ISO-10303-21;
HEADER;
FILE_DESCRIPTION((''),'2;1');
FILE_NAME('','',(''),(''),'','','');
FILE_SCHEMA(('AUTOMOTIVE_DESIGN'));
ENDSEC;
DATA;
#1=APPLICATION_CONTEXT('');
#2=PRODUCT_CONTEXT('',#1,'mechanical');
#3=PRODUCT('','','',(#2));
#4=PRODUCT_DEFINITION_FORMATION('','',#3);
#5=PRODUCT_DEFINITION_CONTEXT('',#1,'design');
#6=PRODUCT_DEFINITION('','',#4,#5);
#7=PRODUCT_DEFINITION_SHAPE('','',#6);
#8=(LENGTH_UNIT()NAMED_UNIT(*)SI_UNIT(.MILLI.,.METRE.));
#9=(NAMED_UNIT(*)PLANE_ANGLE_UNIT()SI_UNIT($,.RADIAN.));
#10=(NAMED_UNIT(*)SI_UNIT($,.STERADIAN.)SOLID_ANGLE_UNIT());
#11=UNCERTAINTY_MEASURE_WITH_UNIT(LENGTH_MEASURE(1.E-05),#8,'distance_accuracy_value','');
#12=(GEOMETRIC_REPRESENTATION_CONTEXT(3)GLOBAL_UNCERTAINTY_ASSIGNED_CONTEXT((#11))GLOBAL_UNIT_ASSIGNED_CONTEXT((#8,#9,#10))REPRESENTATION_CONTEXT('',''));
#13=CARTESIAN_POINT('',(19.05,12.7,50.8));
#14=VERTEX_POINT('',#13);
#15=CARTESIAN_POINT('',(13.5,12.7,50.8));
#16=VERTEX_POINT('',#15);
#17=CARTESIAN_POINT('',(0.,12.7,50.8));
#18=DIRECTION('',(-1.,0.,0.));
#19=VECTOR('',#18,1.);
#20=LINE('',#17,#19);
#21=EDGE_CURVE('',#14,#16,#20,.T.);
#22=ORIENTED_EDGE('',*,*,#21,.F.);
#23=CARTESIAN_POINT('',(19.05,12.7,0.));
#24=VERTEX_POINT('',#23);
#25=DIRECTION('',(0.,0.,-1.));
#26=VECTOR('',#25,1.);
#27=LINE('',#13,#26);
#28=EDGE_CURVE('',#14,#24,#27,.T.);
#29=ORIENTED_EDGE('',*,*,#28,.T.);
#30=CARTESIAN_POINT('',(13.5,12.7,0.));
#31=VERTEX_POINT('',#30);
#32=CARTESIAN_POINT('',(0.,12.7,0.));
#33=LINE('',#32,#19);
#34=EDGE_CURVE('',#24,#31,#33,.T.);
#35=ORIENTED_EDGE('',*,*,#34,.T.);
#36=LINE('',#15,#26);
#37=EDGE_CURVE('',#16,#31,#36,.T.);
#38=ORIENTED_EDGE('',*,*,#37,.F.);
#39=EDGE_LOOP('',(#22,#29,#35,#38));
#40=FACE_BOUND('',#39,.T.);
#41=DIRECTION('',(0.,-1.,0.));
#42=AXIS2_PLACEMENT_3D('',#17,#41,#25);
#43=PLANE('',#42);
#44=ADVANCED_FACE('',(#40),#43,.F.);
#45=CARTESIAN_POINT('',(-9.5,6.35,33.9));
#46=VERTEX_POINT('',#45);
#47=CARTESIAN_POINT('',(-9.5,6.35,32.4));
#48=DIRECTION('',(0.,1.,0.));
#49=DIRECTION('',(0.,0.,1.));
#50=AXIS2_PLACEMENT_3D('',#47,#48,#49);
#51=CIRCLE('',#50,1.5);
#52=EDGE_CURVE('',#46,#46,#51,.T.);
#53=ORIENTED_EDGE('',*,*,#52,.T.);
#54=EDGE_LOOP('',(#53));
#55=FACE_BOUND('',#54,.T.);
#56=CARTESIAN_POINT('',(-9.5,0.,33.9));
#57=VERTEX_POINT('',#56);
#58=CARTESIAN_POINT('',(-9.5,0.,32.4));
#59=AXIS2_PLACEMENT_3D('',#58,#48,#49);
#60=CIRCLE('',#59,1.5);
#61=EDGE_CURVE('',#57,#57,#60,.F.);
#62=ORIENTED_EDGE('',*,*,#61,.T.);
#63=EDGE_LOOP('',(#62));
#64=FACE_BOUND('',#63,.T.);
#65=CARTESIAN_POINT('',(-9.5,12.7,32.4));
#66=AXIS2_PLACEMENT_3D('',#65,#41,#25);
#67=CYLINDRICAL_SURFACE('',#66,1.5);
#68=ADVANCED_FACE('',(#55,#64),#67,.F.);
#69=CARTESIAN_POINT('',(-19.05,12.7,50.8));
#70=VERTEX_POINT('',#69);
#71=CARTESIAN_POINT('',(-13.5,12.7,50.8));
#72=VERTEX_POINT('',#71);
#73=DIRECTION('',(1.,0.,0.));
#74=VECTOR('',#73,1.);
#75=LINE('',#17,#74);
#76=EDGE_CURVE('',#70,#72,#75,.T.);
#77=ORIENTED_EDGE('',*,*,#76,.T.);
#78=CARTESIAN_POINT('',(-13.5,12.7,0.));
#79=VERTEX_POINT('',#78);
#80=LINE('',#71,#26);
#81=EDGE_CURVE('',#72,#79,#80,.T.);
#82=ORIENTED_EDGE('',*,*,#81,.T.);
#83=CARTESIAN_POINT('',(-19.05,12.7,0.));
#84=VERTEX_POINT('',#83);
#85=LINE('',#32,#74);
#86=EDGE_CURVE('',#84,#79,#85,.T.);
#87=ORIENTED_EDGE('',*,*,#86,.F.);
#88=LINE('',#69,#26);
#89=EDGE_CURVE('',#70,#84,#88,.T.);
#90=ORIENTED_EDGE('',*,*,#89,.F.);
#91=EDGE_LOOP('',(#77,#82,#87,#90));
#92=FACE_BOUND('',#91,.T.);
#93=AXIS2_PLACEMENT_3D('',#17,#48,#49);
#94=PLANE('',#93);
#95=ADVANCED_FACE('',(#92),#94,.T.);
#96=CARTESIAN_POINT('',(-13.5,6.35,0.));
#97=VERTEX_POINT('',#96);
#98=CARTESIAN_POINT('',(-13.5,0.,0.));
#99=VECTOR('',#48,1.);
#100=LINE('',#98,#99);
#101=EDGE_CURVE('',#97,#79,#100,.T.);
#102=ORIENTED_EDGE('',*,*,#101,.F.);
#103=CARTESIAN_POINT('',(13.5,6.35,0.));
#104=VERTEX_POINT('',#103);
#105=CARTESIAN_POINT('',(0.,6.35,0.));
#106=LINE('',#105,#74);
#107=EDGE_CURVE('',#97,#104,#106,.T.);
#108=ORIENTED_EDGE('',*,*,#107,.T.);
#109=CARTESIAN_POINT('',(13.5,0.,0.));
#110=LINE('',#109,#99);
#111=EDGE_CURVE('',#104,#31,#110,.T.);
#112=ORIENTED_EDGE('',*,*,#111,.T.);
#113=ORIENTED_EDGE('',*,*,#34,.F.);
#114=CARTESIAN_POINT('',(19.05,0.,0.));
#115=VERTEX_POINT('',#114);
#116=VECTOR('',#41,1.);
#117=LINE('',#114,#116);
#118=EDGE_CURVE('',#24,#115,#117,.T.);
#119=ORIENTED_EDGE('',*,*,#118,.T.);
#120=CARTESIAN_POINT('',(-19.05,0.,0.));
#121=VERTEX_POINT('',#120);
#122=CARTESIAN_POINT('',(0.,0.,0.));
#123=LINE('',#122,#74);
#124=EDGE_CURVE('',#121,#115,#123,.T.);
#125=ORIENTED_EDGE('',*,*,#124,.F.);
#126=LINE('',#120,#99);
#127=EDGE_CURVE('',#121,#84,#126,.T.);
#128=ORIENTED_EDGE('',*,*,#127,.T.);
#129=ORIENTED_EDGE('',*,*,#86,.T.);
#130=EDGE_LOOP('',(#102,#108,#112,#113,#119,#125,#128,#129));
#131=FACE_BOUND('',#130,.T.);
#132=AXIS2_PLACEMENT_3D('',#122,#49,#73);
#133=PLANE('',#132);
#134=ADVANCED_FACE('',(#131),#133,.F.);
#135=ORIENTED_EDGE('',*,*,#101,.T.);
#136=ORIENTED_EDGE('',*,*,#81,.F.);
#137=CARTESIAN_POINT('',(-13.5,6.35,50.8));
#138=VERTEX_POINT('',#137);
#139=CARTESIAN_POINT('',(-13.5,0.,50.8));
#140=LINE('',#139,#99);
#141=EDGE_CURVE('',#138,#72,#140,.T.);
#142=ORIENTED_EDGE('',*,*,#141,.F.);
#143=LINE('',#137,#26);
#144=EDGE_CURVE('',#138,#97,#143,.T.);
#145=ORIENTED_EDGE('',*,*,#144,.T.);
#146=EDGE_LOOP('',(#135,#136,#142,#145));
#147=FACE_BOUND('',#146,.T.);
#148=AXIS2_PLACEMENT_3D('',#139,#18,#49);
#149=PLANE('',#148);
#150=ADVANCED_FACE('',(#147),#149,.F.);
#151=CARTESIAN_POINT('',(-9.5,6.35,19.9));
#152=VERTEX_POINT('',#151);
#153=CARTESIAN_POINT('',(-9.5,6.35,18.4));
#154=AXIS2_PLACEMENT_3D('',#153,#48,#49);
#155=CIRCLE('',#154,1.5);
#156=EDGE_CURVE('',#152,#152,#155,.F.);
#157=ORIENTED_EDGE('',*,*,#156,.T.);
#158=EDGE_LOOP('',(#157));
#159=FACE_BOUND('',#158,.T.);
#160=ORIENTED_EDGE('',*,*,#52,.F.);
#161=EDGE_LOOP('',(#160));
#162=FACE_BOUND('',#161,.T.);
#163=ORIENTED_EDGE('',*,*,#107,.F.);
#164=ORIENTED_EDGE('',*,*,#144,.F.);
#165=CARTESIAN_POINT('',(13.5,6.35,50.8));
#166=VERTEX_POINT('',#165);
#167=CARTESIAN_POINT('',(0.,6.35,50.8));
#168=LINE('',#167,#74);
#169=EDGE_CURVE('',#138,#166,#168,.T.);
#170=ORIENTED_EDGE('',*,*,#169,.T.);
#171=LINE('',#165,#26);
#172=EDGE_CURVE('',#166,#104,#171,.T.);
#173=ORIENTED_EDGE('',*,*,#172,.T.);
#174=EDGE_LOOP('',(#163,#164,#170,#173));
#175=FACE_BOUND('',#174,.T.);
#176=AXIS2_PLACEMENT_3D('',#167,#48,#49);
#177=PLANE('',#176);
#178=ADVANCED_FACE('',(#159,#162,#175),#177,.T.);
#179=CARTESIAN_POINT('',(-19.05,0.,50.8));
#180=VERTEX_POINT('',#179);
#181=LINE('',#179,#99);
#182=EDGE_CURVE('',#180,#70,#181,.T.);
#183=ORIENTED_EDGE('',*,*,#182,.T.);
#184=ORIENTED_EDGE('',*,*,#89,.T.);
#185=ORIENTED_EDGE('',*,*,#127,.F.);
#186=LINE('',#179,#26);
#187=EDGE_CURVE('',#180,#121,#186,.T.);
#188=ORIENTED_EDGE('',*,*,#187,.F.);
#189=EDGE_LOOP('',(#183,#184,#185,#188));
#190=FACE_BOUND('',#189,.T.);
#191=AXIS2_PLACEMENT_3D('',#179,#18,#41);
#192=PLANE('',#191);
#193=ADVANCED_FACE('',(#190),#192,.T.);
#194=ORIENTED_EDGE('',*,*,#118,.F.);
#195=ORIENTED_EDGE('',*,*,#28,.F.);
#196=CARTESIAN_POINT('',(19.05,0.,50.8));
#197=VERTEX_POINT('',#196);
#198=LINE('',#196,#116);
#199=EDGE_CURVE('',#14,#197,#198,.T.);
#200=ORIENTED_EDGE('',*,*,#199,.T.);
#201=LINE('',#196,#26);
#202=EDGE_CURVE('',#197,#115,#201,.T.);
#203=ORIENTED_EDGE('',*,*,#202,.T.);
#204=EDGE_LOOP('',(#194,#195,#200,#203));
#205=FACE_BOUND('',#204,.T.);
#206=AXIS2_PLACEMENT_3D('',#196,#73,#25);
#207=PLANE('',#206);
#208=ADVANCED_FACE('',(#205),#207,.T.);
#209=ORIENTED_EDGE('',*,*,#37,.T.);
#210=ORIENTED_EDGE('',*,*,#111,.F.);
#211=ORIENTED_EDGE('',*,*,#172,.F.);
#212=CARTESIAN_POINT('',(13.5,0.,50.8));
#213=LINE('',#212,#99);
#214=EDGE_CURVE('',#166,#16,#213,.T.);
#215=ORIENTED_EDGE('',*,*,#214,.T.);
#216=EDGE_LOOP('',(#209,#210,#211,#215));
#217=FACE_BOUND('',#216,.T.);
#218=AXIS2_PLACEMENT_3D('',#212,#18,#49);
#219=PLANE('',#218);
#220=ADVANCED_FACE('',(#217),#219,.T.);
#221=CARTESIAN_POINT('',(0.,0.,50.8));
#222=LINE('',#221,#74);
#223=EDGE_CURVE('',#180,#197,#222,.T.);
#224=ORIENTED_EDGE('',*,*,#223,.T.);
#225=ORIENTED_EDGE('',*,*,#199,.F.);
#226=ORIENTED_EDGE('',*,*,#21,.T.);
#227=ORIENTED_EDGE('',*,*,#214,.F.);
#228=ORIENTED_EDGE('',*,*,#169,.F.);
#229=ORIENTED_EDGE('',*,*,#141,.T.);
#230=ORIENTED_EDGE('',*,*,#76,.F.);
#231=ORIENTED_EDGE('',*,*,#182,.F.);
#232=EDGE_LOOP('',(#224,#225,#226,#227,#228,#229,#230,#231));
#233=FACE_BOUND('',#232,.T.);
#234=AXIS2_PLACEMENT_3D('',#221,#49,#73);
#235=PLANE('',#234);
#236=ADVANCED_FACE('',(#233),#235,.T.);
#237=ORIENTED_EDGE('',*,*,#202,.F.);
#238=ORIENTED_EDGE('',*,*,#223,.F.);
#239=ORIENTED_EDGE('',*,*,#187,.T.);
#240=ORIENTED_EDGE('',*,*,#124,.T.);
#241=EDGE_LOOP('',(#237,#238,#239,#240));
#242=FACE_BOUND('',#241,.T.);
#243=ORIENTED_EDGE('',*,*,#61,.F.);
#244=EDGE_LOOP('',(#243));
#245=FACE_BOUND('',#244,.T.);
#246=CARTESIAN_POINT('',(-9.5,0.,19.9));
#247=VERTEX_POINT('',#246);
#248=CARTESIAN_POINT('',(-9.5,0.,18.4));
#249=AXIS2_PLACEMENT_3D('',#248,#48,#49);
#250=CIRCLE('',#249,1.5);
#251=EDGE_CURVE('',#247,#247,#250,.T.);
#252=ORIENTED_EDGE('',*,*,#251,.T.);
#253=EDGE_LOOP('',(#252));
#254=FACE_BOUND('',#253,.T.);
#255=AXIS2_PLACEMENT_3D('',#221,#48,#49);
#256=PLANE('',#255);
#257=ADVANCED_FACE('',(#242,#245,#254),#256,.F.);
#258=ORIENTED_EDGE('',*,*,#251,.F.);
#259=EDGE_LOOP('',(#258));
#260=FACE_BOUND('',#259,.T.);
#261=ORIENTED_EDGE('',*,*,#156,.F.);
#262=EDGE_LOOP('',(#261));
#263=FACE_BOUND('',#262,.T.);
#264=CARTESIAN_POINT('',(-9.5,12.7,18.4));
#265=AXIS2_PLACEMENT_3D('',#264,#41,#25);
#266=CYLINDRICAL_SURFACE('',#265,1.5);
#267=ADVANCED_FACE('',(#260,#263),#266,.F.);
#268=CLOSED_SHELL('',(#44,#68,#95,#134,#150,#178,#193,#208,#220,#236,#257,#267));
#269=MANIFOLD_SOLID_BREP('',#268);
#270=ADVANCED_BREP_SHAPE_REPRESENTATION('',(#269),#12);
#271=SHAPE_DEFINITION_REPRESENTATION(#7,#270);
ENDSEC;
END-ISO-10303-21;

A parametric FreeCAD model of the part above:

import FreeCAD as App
import Part
import Sketcher
Q = App.Units.Quantity

doc = App.newDocument("Part")
body = doc.addObject("PartDesign::Body", "Body")

# Sketch on XY plane
sketch1 = body.newObject("Sketcher::SketchObject", "Sketch")
sketch1.AttachmentSupport = (doc.getObject("XY_Plane"), [""])
sketch1.MapMode = "FlatFace"
sketch1.addGeometry(Part.LineSegment(App.Vector(-19.05, 12.7, 0), App.Vector(-19.05, 0, 0)), False)
sketch1.addGeometry(Part.LineSegment(App.Vector(-19.05, 0, 0), App.Vector(19.05, 0, 0)), False)
sketch1.addGeometry(Part.LineSegment(App.Vector(19.05, 0, 0), App.Vector(19.05, 12.7, 0)), False)
sketch1.addGeometry(Part.LineSegment(App.Vector(19.05, 12.7, 0), App.Vector(13.5, 12.7, 0)), False)
sketch1.addGeometry(Part.LineSegment(App.Vector(13.5, 12.7, 0), App.Vector(13.5, 6.35, 0)), False)
sketch1.addGeometry(Part.LineSegment(App.Vector(13.5, 6.35, 0), App.Vector(-13.5, 6.35, 0)), False)
sketch1.addGeometry(Part.LineSegment(App.Vector(-13.5, 6.35, 0), App.Vector(-13.5, 12.7, 0)), False)
sketch1.addGeometry(Part.LineSegment(App.Vector(-13.5, 12.7, 0), App.Vector(-19.05, 12.7, 0)), False)
sketch1.addConstraint(Sketcher.Constraint("Coincident", 0, 2, 1, 1))
sketch1.addConstraint(Sketcher.Constraint("Coincident", 1, 2, 2, 1))
sketch1.addConstraint(Sketcher.Constraint("Coincident", 2, 2, 3, 1))
sketch1.addConstraint(Sketcher.Constraint("Coincident", 3, 2, 4, 1))
sketch1.addConstraint(Sketcher.Constraint("Coincident", 4, 2, 5, 1))
sketch1.addConstraint(Sketcher.Constraint("Coincident", 5, 2, 6, 1))
sketch1.addConstraint(Sketcher.Constraint("Coincident", 6, 2, 7, 1))
sketch1.addConstraint(Sketcher.Constraint("Coincident", 7, 2, 0, 1))
sketch1.addConstraint(Sketcher.Constraint("Vertical", 0))
sketch1.addConstraint(Sketcher.Constraint("Horizontal", 1))
sketch1.addConstraint(Sketcher.Constraint("Vertical", 2))
sketch1.addConstraint(Sketcher.Constraint("Horizontal", 3))
sketch1.addConstraint(Sketcher.Constraint("Vertical", 4))
sketch1.addConstraint(Sketcher.Constraint("Horizontal", 5))
sketch1.addConstraint(Sketcher.Constraint("Vertical", 6))
sketch1.addConstraint(Sketcher.Constraint("Horizontal", 7))
sketch1.addConstraint(Sketcher.Constraint("Symmetric", 0, 2, 1, 2, -1, 1))
sketch1.addConstraint(Sketcher.Constraint("Symmetric", 3, 2, 6, 2, -2))
sketch1.addConstraint(Sketcher.Constraint("DistanceX", 1, 1, 1, 2, Q("1.5 in")))
sketch1.addConstraint(Sketcher.Constraint("DistanceY", 0, 2, 0, 1, Q("0.5 in")))
sketch1.addConstraint(Sketcher.Constraint("DistanceY", 4, 2, 4, 1, Q("0.25 in")))
sketch1.addConstraint(Sketcher.Constraint("DistanceX", 3, 2, 3, 1, 5.55))
pad1 = body.newObject("PartDesign::Pad", "Pad")
pad1.Profile = sketch1
pad1.Length = Q("2 in")

# Sketch on XZ plane
sketch2 = body.newObject("Sketcher::SketchObject", "Sketch001")
sketch2.AttachmentSupport = (doc.getObject("XZ_Plane"), [""])
sketch2.MapMode = "FlatFace"
sketch2.addGeometry(Part.Circle(App.Vector(-9.5, 32.4, 0), App.Vector(0, 0, 1), 1.5), False)
sketch2.addGeometry(Part.Circle(App.Vector(-9.5, 18.4, 0), App.Vector(0, 0, 1), 1.5), False)
sketch2.addConstraint(Sketcher.Constraint("Equal", 0, 1))
sketch2.addConstraint(Sketcher.Constraint("Vertical", 0, 3, 1, 3))
sketch2.addConstraint(Sketcher.Constraint("Diameter", 0, 3.0))
sketch2.addConstraint(Sketcher.Constraint("DistanceX", 0, 3, -1, 1, 9.5))
sketch2.addConstraint(Sketcher.Constraint("DistanceY", -1, 1, 0, 3, 32.4))
sketch2.addConstraint(Sketcher.Constraint("DistanceY", -1, 1, 1, 3, 18.4))
pocket1 = body.newObject("PartDesign::Pocket", "Pocket")
pocket1.Profile = sketch2
pocket1.Type = "ThroughAll"

doc.recompute()
